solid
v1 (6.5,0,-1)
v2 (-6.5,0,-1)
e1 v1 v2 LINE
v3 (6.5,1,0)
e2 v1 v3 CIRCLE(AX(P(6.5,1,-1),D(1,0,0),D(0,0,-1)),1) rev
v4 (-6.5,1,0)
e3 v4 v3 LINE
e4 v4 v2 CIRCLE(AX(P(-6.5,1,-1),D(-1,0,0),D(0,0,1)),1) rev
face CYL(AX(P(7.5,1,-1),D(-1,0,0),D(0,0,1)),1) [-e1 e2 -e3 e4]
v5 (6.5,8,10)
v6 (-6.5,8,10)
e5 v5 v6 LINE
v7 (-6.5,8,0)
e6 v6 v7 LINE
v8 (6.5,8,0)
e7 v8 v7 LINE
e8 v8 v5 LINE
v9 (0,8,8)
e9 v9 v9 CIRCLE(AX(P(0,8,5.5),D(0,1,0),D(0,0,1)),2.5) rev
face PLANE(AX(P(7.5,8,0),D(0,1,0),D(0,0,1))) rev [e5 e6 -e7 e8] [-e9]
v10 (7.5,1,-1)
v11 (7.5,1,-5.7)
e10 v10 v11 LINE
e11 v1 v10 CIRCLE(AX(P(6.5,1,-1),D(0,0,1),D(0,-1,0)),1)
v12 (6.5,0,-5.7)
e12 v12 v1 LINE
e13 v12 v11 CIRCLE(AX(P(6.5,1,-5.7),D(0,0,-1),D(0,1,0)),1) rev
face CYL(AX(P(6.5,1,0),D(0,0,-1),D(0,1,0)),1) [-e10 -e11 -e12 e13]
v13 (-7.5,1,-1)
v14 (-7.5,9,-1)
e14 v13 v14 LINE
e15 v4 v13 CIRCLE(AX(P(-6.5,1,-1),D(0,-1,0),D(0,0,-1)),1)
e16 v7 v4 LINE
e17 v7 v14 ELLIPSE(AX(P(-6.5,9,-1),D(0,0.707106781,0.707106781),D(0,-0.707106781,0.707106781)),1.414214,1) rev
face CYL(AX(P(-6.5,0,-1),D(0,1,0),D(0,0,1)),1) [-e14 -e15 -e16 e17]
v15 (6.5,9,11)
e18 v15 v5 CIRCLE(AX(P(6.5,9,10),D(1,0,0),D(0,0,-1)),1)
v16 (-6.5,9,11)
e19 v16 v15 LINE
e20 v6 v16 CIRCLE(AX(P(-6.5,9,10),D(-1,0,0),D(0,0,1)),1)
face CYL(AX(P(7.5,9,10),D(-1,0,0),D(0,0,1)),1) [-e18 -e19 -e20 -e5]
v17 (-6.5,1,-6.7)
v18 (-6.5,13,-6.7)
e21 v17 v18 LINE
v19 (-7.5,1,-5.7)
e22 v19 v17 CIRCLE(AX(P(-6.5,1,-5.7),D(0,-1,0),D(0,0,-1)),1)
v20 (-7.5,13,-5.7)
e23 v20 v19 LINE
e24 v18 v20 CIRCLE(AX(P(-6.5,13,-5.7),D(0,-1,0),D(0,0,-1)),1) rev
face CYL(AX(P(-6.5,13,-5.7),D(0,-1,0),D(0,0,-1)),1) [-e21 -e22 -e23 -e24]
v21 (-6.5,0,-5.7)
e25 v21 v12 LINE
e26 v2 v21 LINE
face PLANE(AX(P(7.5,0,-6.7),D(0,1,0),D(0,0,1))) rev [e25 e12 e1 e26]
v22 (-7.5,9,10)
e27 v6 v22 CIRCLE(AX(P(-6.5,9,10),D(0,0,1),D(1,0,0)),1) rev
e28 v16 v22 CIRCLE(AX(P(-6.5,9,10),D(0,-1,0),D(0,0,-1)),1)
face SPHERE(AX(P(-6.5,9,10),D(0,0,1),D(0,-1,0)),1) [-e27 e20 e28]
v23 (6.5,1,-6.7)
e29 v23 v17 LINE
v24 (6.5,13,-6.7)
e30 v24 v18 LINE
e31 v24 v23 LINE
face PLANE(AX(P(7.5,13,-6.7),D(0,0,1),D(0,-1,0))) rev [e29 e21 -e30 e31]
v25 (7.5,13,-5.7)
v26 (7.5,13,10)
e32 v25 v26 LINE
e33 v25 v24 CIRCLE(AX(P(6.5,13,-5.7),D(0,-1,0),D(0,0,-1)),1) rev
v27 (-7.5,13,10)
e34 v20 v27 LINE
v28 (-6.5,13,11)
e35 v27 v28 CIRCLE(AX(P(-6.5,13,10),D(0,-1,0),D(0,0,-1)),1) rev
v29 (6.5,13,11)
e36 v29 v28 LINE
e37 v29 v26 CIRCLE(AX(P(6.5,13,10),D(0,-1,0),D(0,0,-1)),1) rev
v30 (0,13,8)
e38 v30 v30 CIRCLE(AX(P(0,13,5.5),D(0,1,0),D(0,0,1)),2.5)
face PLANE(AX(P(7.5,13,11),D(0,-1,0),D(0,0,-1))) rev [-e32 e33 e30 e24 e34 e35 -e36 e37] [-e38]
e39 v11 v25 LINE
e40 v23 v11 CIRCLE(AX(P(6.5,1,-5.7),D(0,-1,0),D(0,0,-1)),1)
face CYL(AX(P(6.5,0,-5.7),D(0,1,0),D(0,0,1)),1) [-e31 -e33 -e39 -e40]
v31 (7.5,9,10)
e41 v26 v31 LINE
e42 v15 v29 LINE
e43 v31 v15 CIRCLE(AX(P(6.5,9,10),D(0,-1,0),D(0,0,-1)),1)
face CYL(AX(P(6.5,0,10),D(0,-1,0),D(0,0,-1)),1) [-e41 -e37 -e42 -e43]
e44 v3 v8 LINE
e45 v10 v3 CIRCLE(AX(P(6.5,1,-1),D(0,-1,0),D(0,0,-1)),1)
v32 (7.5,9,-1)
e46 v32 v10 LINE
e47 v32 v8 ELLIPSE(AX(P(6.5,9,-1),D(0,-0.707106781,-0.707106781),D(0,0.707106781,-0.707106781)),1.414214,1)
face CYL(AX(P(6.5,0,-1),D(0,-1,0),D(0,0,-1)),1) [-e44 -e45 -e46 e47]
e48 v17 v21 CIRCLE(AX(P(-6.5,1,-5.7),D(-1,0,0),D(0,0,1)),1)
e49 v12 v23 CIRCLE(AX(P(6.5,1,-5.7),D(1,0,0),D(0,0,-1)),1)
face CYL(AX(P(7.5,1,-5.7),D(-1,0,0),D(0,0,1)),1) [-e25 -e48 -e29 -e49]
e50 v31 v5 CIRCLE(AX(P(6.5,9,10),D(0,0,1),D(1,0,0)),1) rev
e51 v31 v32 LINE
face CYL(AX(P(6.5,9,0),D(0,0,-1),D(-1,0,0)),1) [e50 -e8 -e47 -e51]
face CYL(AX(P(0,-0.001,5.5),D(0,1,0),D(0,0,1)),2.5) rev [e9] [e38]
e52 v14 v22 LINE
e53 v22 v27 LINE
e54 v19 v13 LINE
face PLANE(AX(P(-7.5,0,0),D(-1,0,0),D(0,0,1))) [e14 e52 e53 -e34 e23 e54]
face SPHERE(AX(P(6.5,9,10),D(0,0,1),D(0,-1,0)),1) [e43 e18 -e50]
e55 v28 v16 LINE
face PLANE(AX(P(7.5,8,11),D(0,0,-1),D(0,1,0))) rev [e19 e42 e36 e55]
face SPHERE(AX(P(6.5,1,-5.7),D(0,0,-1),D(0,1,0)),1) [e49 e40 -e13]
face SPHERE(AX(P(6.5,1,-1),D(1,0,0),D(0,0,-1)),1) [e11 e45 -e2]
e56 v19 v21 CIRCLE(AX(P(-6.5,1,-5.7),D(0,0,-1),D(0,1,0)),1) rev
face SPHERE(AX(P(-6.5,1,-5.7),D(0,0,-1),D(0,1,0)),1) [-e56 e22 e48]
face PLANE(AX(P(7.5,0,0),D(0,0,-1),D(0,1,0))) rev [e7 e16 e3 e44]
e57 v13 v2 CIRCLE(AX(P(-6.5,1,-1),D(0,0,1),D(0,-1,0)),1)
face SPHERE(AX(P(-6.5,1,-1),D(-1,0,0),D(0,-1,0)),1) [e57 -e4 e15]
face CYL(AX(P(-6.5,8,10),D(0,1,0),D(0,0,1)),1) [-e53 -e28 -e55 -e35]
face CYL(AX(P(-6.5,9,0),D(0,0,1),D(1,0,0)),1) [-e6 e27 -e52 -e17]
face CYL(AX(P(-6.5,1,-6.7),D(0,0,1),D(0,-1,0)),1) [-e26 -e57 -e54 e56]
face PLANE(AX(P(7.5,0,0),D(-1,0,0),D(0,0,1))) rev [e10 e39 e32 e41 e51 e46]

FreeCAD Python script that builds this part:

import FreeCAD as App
import Part
import Sketcher
from FreeCAD import Vector
Q = App.Units.Quantity


def edges_at(feature, points):
    """Names of the edges that pass closest to the given points."""
    edges = feature.Shape.Edges
    near = lambda p: min(range(len(edges)), key=lambda i: edges[i].distToShape(Part.Vertex(*p))[0])
    return sorted({f"Edge{near(p) + 1}" for p in points})

doc = App.newDocument("Part")
body = doc.addObject("PartDesign::Body", "Body")

# Sketch on YZ plane
sketch1 = body.newObject("Sketcher::SketchObject", "Sketch")
sketch1.AttachmentSupport = (doc.getObject("YZ_Plane"), [""])
sketch1.MapMode = "FlatFace"
sketch1.addGeometry([
    Part.LineSegment(Vector(8, 0, 0), Vector(0, 0, 0)),  # 0
    Part.LineSegment(Vector(0, 0, 0), Vector(0, -7, 0)),  # 1
    Part.LineSegment(Vector(0, -7, 0), Vector(13, -7, 0)),  # 2
    Part.LineSegment(Vector(13, -7, 0), Vector(13, 11, 0)),  # 3
    Part.LineSegment(Vector(13, 11, 0), Vector(8, 11, 0)),  # 4
    Part.LineSegment(Vector(8, 11, 0), Vector(8, 0, 0)),  # 5
], False)
sketch1.addConstraint([
    Sketcher.Constraint("Coincident", 0, 2, 1, 1),
    Sketcher.Constraint("Coincident", 1, 2, 2, 1),
    Sketcher.Constraint("Coincident", 2, 2, 3, 1),
    Sketcher.Constraint("Coincident", 3, 2, 4, 1),
    Sketcher.Constraint("Coincident", 4, 2, 5, 1),
    Sketcher.Constraint("Coincident", 5, 2, 0, 1),
    Sketcher.Constraint("Horizontal", 0),
    Sketcher.Constraint("Vertical", 1),
    Sketcher.Constraint("Horizontal", 2),
    Sketcher.Constraint("Vertical", 3),
    Sketcher.Constraint("Horizontal", 4),
    Sketcher.Constraint("Vertical", 5),
    Sketcher.Constraint("Coincident", 0, 2, -1, 1),
    Sketcher.Constraint("DistanceX", 0, 2, 0, 1, Q("8 mm")),
    Sketcher.Constraint("DistanceX", 2, 1, 2, 2, Q("13 mm")),
    Sketcher.Constraint("DistanceY", 5, 2, 5, 1, Q("11 mm")),
    Sketcher.Constraint("DistanceY", 1, 2, 1, 1, Q("6.7 mm")),
])
pad1 = body.newObject("PartDesign::Pad", "Pad")
pad1.Profile = sketch1
pad1.Length = 15
pad1.Midplane = True

# Sketch on XZ plane
sketch2 = body.newObject("Sketcher::SketchObject", "Sketch001")
sketch2.AttachmentSupport = (doc.getObject("XZ_Plane"), [""])
sketch2.MapMode = "FlatFace"
sketch2.AttachmentOffset = App.Placement(Vector(0, 0, -13), App.Rotation())
sketch2.addGeometry(Part.Circle(Vector(0, 5.5, 0), Vector(0, 0, 1), 2.5), False)
sketch2.addConstraint([
    Sketcher.Constraint("PointOnObject", 0, 3, -2),
    Sketcher.Constraint("Diameter", 0, Q("5 mm")),
    Sketcher.Constraint("DistanceY", -1, 1, 0, 3, Q("5.5 mm")),
])
pocket1 = body.newObject("PartDesign::Pocket", "Pocket")
pocket1.Profile = sketch2
pocket1.Type = "UpToFirst"
pocket1.Reversed = True
doc.recompute()

fillet = body.newObject("PartDesign::Fillet", "Fillet")
fillet.Base = (pocket1, edges_at(pocket1, [
    (0, 0, 0),
    (0, 8, 11),
    (0, 0, -6.7),
    (7.5, 10.5, 11),
    (7.5, 8, 5.5),
    (7.5, 4, 0),
    (7.5, 0, -3.35),
    (-7.5, 4, 0),
    (-7.5, 8, 5.5),
    (-7.5, 10.5, 11),
    (-7.5, 6.5, -6.7),
    (-7.5, 0, -3.35),
    (7.5, 6.5, -6.7),
]))
fillet.Radius = 1

doc.recompute()
